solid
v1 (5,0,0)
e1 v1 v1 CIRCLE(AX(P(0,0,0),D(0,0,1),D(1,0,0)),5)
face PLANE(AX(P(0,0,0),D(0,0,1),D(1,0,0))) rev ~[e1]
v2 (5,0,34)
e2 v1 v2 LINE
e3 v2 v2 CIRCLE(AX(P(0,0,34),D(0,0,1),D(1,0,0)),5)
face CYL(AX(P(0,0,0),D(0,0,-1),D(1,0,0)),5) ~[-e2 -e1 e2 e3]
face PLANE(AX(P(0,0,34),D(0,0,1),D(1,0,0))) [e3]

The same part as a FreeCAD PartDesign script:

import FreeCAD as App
import Part
import Sketcher
Q = App.Units.Quantity

doc = App.newDocument("Part")
body = doc.addObject("PartDesign::Body", "Body")

# Sketch on XY plane
sketch1 = body.newObject("Sketcher::SketchObject", "Sketch")
sketch1.AttachmentSupport = (doc.getObject("XY_Plane"), [""])
sketch1.MapMode = "FlatFace"
sketch1.addGeometry(Part.Circle(App.Vector(0, 0, 0), App.Vector(0, 0, 1), 5), False)
sketch1.addConstraint([
    Sketcher.Constraint("Coincident", 0, 3, -1, 1),
    Sketcher.Constraint("Diameter", 0, Q("10 mm")),
])
pad1 = body.newObject("PartDesign::Pad", "Pad")
pad1.Profile = sketch1
pad1.Length = 34

doc.recompute()
